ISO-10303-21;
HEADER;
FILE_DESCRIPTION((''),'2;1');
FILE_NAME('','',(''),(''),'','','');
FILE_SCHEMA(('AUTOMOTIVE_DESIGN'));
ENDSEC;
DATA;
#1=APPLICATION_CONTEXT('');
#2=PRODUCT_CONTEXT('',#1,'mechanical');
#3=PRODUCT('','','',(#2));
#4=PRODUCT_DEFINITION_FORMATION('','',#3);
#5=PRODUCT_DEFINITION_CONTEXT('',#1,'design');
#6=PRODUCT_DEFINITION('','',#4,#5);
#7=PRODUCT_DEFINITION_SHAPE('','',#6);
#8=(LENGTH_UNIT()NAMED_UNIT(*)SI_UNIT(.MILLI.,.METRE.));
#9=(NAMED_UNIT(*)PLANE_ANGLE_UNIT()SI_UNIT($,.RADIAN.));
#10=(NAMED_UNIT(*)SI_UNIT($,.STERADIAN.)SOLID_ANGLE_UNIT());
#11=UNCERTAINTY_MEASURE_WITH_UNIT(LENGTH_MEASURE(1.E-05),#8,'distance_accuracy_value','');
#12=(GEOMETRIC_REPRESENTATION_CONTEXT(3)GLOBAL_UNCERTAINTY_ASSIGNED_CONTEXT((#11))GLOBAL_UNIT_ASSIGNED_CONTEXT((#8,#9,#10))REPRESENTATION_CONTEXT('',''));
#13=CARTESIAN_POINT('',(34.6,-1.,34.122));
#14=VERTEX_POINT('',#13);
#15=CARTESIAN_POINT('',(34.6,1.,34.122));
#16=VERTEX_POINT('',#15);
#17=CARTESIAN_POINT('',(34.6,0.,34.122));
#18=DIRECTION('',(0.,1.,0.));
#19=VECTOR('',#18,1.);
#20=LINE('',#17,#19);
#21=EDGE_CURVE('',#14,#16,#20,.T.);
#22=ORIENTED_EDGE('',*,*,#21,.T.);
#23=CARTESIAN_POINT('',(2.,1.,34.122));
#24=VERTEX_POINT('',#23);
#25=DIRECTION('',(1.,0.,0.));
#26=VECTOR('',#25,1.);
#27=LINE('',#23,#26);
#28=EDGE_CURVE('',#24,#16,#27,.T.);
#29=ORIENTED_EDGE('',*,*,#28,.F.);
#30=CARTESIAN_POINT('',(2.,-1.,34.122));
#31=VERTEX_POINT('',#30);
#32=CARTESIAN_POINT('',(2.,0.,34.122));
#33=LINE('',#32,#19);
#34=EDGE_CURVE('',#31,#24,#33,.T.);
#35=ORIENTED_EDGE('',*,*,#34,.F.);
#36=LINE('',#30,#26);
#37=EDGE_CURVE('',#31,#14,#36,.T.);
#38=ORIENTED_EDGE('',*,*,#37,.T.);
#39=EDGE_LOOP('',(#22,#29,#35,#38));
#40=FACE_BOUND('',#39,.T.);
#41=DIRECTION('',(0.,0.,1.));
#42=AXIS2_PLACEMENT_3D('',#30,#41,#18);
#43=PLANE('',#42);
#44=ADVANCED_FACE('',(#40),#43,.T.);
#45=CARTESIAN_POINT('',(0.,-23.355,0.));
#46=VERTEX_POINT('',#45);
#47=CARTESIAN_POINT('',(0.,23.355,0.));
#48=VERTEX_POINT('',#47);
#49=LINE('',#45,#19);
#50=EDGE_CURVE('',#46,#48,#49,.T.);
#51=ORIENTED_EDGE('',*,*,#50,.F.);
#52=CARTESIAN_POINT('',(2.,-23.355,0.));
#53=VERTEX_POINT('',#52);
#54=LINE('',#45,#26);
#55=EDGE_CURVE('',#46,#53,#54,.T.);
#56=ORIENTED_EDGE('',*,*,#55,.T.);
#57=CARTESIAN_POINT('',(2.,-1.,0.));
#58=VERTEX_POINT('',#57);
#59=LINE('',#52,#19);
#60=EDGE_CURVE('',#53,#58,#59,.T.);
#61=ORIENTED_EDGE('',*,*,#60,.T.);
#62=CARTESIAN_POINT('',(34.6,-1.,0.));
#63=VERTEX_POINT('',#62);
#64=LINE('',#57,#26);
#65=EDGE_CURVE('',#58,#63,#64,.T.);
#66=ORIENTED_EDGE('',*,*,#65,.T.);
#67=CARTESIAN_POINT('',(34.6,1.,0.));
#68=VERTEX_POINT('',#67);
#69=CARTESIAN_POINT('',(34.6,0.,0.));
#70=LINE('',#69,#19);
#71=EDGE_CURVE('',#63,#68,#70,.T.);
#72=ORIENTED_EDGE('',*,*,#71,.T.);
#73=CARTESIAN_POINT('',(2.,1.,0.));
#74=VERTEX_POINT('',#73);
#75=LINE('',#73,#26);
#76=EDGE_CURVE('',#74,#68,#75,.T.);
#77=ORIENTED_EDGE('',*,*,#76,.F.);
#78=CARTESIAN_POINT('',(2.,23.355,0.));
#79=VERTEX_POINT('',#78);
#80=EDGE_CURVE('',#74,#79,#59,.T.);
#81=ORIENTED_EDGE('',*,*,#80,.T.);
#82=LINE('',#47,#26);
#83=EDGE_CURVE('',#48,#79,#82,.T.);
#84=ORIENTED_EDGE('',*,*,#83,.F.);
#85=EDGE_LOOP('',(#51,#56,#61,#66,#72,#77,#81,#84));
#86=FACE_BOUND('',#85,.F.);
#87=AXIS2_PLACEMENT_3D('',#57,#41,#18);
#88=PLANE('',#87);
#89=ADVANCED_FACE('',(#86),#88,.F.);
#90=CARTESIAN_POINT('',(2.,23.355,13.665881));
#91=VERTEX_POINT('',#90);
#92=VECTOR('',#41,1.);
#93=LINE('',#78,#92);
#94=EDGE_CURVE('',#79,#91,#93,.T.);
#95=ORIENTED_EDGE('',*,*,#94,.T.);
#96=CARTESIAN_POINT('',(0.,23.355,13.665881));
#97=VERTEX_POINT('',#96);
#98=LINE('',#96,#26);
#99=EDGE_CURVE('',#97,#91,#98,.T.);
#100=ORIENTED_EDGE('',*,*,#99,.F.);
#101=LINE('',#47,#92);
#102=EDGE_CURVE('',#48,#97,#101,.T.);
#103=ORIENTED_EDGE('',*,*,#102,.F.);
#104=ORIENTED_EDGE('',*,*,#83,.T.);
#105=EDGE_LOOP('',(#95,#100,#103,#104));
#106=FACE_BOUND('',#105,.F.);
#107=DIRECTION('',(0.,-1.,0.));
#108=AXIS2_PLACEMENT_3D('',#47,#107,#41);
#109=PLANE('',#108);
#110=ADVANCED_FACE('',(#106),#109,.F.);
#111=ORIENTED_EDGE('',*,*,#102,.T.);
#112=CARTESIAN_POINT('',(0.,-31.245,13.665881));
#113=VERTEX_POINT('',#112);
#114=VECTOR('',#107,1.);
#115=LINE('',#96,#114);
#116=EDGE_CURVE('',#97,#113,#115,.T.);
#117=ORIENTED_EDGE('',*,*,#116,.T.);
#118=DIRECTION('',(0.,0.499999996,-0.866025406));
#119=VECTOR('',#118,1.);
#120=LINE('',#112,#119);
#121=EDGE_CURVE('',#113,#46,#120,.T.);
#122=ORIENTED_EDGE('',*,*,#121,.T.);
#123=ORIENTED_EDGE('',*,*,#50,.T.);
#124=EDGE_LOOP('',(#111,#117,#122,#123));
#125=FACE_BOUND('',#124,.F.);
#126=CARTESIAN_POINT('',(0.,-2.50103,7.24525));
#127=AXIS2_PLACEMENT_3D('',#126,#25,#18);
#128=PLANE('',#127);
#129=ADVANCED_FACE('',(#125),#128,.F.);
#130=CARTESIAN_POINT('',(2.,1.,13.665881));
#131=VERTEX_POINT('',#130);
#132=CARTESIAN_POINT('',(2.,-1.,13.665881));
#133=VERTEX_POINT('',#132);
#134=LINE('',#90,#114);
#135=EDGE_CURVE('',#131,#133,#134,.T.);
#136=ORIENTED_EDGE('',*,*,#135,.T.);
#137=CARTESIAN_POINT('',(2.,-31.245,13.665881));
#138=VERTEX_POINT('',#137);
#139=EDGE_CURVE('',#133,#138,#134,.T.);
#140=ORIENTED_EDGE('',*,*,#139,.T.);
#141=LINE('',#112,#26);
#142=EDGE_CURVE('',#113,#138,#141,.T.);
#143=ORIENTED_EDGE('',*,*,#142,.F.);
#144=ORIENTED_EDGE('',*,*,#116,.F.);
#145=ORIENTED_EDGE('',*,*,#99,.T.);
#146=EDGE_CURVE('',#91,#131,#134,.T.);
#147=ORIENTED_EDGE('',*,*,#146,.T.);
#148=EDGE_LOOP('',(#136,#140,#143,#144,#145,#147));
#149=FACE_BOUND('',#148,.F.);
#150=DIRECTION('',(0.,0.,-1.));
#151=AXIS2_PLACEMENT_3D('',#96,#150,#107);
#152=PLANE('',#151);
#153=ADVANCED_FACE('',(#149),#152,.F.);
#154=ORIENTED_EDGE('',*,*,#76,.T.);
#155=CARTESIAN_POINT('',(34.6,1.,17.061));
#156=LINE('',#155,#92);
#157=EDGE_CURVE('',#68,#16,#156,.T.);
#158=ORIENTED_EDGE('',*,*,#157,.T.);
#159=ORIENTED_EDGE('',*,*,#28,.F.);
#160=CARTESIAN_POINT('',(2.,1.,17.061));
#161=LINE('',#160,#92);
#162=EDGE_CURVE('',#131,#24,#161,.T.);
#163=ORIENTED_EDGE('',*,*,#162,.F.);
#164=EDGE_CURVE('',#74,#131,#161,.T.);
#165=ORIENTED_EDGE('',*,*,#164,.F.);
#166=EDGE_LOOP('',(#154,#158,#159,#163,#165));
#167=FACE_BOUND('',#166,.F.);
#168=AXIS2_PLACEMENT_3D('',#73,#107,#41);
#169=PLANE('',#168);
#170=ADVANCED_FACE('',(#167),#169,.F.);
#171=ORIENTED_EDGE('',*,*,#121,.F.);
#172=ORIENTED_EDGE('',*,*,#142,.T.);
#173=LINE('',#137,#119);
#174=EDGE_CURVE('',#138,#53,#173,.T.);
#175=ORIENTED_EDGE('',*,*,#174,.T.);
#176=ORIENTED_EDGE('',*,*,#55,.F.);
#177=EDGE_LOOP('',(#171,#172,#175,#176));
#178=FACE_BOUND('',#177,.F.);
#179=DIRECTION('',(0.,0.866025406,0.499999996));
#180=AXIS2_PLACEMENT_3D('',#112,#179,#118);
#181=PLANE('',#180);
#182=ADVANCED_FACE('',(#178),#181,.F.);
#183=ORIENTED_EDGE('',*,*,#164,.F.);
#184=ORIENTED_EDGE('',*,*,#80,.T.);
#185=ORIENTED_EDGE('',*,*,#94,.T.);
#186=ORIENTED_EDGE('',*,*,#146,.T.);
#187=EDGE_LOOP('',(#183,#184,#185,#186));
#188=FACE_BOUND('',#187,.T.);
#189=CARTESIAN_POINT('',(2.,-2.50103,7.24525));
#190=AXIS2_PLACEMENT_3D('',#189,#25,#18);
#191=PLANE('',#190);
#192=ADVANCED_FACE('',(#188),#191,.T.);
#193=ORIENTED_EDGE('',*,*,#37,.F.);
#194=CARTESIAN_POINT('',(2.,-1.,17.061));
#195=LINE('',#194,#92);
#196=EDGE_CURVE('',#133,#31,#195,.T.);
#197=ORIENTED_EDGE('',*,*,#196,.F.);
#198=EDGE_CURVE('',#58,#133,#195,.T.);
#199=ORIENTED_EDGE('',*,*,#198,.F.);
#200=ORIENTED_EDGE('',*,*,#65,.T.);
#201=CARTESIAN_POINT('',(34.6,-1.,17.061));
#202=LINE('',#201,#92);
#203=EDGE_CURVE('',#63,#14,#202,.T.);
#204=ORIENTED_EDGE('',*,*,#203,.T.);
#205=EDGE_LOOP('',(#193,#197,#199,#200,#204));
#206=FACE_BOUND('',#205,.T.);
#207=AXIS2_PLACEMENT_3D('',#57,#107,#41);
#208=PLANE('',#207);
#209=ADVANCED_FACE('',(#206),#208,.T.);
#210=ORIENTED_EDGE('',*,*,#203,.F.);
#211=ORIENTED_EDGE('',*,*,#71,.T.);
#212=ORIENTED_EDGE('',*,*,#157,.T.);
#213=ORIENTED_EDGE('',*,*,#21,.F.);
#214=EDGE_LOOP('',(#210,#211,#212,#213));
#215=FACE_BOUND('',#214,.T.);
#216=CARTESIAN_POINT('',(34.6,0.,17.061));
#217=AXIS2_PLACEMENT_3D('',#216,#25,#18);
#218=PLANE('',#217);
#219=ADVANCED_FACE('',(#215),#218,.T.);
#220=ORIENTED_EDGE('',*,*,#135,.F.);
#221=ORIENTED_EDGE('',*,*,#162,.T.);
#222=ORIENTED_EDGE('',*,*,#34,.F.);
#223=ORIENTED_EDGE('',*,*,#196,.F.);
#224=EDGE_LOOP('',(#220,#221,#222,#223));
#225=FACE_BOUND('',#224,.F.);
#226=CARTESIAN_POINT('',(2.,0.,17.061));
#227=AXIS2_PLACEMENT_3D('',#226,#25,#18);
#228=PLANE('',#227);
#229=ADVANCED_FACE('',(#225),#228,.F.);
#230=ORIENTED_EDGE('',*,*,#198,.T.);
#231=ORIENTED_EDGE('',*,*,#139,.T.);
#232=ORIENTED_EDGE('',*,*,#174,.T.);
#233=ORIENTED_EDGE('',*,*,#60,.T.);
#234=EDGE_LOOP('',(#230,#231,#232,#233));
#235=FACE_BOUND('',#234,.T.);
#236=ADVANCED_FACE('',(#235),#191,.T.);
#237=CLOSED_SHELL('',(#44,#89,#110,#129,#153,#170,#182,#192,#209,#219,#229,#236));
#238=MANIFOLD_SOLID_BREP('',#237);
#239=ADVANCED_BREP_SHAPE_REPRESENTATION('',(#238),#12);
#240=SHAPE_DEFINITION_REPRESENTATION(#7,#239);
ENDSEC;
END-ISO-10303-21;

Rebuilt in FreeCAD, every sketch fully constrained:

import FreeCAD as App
import Part
import Sketcher

V = App.Vector
Q = App.Units.Quantity

doc = App.newDocument("Part")
body = doc.addObject("PartDesign::Body", "Body")

# Sketch on YZ plane
sketch1 = doc.addObject("Sketcher::SketchObject", "Sketch")
body.addObject(sketch1)
sketch1.AttachmentSupport = (doc.YZ_Plane, [""])
sketch1.MapMode = "FlatFace"
sketch1.addGeometry([
    Part.LineSegment(V(-23.355, 0, 0), V(23.355, 0, 0)),
    Part.LineSegment(V(23.355, 0, 0), V(23.355, 13.665881, 0)),
    Part.LineSegment(V(23.355, 13.665881, 0), V(-31.245, 13.665881, 0)),
    Part.LineSegment(V(-31.245, 13.665881, 0), V(-23.355, 0, 0)),
], False)
sketch1.addConstraint([
    Sketcher.Constraint("Coincident", 0, 2, 1, 1),
    Sketcher.Constraint("Coincident", 1, 2, 2, 1),
    Sketcher.Constraint("Coincident", 2, 2, 3, 1),
    Sketcher.Constraint("Coincident", 3, 2, 0, 1),
    Sketcher.Constraint("Horizontal", 0),
    Sketcher.Constraint("Vertical", 1),
    Sketcher.Constraint("Horizontal", 2),
    Sketcher.Constraint("Symmetric", 0, 2, 3, 2, -1, 1),
    Sketcher.Constraint("Angle", 3, Q("-60 deg")),
    Sketcher.Constraint("DistanceX", 2, 2, 2, 1, 54.6),
    Sketcher.Constraint("DistanceX", 0, 1, 0, 2, 46.71),
])
pad1 = doc.addObject("PartDesign::Pad", "Pad")
body.addObject(pad1)
pad1.Profile = sketch1
pad1.Length = 2

# Sketch on YZ plane
sketch2 = doc.addObject("Sketcher::SketchObject", "Sketch001")
body.addObject(sketch2)
sketch2.AttachmentSupport = (doc.YZ_Plane, [""])
sketch2.MapMode = "FlatFace"
sketch2.AttachmentOffset = App.Placement(V(0, 0, 2), App.Rotation())
sketch2.addGeometry([
    Part.LineSegment(V(-1, 34.122, 0), V(-1, 0, 0)),
    Part.LineSegment(V(-1, 0, 0), V(1, 0, 0)),
    Part.LineSegment(V(1, 0, 0), V(1, 34.122, 0)),
    Part.LineSegment(V(1, 34.122, 0), V(-1, 34.122, 0)),
], False)
sketch2.addConstraint([
    Sketcher.Constraint("Coincident", 0, 2, 1, 1),
    Sketcher.Constraint("Coincident", 1, 2, 2, 1),
    Sketcher.Constraint("Coincident", 2, 2, 3, 1),
    Sketcher.Constraint("Coincident", 3, 2, 0, 1),
    Sketcher.Constraint("Vertical", 0),
    Sketcher.Constraint("Horizontal", 1),
    Sketcher.Constraint("Vertical", 2),
    Sketcher.Constraint("Horizontal", 3),
    Sketcher.Constraint("Symmetric", 0, 2, 1, 2, -1, 1),
    Sketcher.Constraint("DistanceX", 1, 1, 1, 2, 2.0),
    Sketcher.Constraint("DistanceY", 0, 2, 0, 1, 34.122),
])
pad2 = doc.addObject("PartDesign::Pad", "Pad001")
body.addObject(pad2)
pad2.Profile = sketch2
pad2.Length = 32.6

doc.recompute()
